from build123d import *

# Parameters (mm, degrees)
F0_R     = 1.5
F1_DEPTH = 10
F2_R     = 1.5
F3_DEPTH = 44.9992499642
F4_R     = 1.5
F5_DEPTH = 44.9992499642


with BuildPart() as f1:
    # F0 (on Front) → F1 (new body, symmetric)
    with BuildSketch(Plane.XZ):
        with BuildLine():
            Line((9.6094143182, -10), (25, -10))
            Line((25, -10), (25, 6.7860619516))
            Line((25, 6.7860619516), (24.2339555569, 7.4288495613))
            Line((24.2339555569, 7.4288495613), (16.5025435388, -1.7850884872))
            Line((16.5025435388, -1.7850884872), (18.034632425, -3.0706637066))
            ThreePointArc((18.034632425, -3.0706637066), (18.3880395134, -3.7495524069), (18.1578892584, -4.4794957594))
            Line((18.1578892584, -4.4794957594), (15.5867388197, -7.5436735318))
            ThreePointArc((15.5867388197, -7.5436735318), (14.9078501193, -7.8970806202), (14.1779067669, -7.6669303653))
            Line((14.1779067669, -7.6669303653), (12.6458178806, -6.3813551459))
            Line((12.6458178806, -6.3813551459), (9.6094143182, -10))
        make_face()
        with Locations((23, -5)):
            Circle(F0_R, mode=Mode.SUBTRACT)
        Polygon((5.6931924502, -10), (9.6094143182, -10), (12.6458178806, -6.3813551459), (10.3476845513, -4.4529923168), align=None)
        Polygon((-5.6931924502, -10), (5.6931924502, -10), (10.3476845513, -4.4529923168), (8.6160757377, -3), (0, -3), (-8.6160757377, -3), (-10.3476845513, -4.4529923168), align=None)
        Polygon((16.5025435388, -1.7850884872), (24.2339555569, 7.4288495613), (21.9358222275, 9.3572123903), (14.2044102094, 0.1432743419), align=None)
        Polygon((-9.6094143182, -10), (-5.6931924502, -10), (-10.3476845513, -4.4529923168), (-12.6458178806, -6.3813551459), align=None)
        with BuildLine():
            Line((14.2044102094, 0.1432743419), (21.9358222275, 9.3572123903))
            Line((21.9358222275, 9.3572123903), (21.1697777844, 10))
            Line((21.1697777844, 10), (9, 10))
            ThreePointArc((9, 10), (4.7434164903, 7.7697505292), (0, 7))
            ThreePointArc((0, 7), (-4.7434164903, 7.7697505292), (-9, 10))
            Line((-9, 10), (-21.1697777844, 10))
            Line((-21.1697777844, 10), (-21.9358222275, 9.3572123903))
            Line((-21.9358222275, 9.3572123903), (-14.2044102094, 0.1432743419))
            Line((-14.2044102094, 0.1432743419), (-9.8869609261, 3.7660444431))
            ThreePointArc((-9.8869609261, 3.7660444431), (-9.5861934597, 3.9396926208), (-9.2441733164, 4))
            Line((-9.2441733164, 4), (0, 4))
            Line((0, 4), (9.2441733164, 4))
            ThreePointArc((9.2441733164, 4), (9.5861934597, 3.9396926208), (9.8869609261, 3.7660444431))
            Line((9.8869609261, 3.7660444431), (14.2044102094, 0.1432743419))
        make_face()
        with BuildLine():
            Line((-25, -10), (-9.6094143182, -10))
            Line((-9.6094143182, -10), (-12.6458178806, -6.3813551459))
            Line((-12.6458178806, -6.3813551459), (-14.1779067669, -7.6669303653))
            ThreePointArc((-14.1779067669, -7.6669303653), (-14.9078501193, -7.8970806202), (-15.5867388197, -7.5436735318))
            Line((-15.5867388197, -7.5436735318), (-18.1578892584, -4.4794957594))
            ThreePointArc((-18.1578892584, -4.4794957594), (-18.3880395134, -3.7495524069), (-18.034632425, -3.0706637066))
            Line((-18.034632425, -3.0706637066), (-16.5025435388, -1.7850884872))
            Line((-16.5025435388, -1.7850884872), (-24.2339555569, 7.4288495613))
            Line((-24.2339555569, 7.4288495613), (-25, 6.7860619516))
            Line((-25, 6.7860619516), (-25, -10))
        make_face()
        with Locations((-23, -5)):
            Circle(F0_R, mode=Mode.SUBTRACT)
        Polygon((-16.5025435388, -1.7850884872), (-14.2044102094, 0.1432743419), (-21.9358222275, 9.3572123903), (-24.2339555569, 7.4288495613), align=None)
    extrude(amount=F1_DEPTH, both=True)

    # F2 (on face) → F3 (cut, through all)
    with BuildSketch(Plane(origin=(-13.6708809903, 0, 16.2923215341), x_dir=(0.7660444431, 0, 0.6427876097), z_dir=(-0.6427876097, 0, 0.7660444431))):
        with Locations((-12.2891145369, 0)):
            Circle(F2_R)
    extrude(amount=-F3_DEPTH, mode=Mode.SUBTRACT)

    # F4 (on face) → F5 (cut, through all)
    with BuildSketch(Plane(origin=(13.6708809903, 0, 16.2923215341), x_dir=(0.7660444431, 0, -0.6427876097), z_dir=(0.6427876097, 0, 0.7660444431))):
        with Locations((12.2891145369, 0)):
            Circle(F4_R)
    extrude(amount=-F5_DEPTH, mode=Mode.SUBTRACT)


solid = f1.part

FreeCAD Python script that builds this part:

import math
import FreeCAD as App
import Part
import Sketcher
from FreeCAD import Vector
Q = App.Units.Quantity

doc = App.newDocument("Part")
body = doc.addObject("PartDesign::Body", "Body")

# Sketch on XZ plane
sketch1 = body.newObject("Sketcher::SketchObject", "Sketch")
sketch1.AttachmentSupport = (doc.getObject("XZ_Plane"), [""])
sketch1.MapMode = "FlatFace"
sketch1.addGeometry(Part.LineSegment(Vector(25, -10, 0), Vector(25, 6.8, 0)), False)
sketch1.addGeometry(Part.LineSegment(Vector(25, 6.8, 0), Vector(24.2, 7.4, 0)), False)
sketch1.addGeometry(Part.LineSegment(Vector(24.2, 7.4, 0), Vector(21.9, 9.4, 0)), False)
sketch1.addGeometry(Part.LineSegment(Vector(21.9, 9.4, 0), Vector(21.2, 10, 0)), False)
sketch1.addGeometry(Part.LineSegment(Vector(21.2, 10, 0), Vector(9, 10, 0)), False)
sketch1.addGeometry(Part.ArcOfCircle(Part.Circle(Vector(0, 22, 0), Vector(0, 0, 1), 15), math.radians(-90), math.radians(-53)), False)
sketch1.addGeometry(Part.ArcOfCircle(Part.Circle(Vector(0, 22, 0), Vector(0, 0, 1), 15), math.radians(-127), math.radians(-90)), False)
sketch1.addGeometry(Part.LineSegment(Vector(-9, 10, 0), Vector(-21.2, 10, 0)), False)
sketch1.addGeometry(Part.LineSegment(Vector(-21.2, 10, 0), Vector(-21.9, 9.4, 0)), False)
sketch1.addGeometry(Part.LineSegment(Vector(-21.9, 9.4, 0), Vector(-24.2, 7.4, 0)), False)
sketch1.addGeometry(Part.LineSegment(Vector(-24.2, 7.4, 0), Vector(-25, 6.8, 0)), False)
sketch1.addGeometry(Part.LineSegment(Vector(-25, 6.8, 0), Vector(-25, -10, 0)), False)
sketch1.addGeometry(Part.LineSegment(Vector(-25, -10, 0), Vector(25, -10, 0)), False)
sketch1.addGeometry(Part.LineSegment(Vector(-18, -3.1, 0), Vector(-16.5, -1.8, 0)), False)
sketch1.addGeometry(Part.LineSegment(Vector(-16.5, -1.8, 0), Vector(-14.2, 0.1, 0)), False)
sketch1.addGeometry(Part.LineSegment(Vector(-14.2, 0.1, 0), Vector(-9.9, 3.8, 0)), False)
sketch1.addGeometry(Part.ArcOfCircle(Part.Circle(Vector(-9.2, 3, 0), Vector(0, 0, 1), 1), math.radians(90), math.radians(130)), False)
sketch1.addGeometry(Part.LineSegment(Vector(-9.2, 4, 0), Vector(9.2, 4, 0)), False)
sketch1.addGeometry(Part.ArcOfCircle(Part.Circle(Vector(9.2, 3, 0), Vector(0, 0, 1), 1), math.radians(50), math.radians(90)), False)
sketch1.addGeometry(Part.LineSegment(Vector(9.9, 3.8, 0), Vector(14.2, 0.1, 0)), False)
sketch1.addGeometry(Part.LineSegment(Vector(14.2, 0.1, 0), Vector(16.5, -1.8, 0)), False)
sketch1.addGeometry(Part.LineSegment(Vector(16.5, -1.8, 0), Vector(18, -3.1, 0)), False)
sketch1.addGeometry(Part.ArcOfCircle(Part.Circle(Vector(17.4, -3.8, 0), Vector(0, 0, 1), 1), math.radians(-40), math.radians(50)), False)
sketch1.addGeometry(Part.LineSegment(Vector(18.2, -4.5, 0), Vector(15.6, -7.5, 0)), False)
sketch1.addGeometry(Part.ArcOfCircle(Part.Circle(Vector(14.8, -6.9, 0), Vector(0, 0, 1), 1), math.radians(-130), math.radians(-40)), False)
sketch1.addGeometry(Part.LineSegment(Vector(14.2, -7.7, 0), Vector(12.6, -6.4, 0)), False)
sketch1.addGeometry(Part.LineSegment(Vector(12.6, -6.4, 0), Vector(10.3, -4.5, 0)), False)
sketch1.addGeometry(Part.LineSegment(Vector(10.3, -4.5, 0), Vector(8.6, -3, 0)), False)
sketch1.addGeometry(Part.LineSegment(Vector(8.6, -3, 0), Vector(-8.6, -3, 0)), False)
sketch1.addGeometry(Part.LineSegment(Vector(-8.6, -3, 0), Vector(-10.3, -4.5, 0)), False)
sketch1.addGeometry(Part.LineSegment(Vector(-10.3, -4.5, 0), Vector(-12.6, -6.4, 0)), False)
sketch1.addGeometry(Part.LineSegment(Vector(-12.6, -6.4, 0), Vector(-14.2, -7.7, 0)), False)
sketch1.addGeometry(Part.ArcOfCircle(Part.Circle(Vector(-14.8, -6.9, 0), Vector(0, 0, 1), 1), math.radians(-140), math.radians(-50)), False)
sketch1.addGeometry(Part.LineSegment(Vector(-15.6, -7.5, 0), Vector(-18.2, -4.5, 0)), False)
sketch1.addGeometry(Part.ArcOfCircle(Part.Circle(Vector(-17.4, -3.8, 0), Vector(0, 0, 1), 1), math.radians(130), math.radians(220)), False)
sketch1.addGeometry(Part.Circle(Vector(-23, -5, 0), Vector(0, 0, 1), 1.5), False)
sketch1.addGeometry(Part.Circle(Vector(23, -5, 0), Vector(0, 0, 1), 1.5), False)
sketch1.addConstraint(Sketcher.Constraint("Coincident", 0, 2, 1, 1))
sketch1.addConstraint(Sketcher.Constraint("Coincident", 1, 2, 2, 1))
sketch1.addConstraint(Sketcher.Constraint("Coincident", 2, 2, 3, 1))
sketch1.addConstraint(Sketcher.Constraint("Coincident", 3, 2, 4, 1))
sketch1.addConstraint(Sketcher.Constraint("Coincident", 4, 2, 5, 2))
sketch1.addConstraint(Sketcher.Constraint("Tangent", 5, 1, 6, 2))
sketch1.addConstraint(Sketcher.Constraint("Coincident", 6, 1, 7, 1))
sketch1.addConstraint(Sketcher.Constraint("Coincident", 7, 2, 8, 1))
sketch1.addConstraint(Sketcher.Constraint("Coincident", 8, 2, 9, 1))
sketch1.addConstraint(Sketcher.Constraint("Coincident", 9, 2, 10, 1))
sketch1.addConstraint(Sketcher.Constraint("Coincident", 10, 2, 11, 1))
sketch1.addConstraint(Sketcher.Constraint("Coincident", 11, 2, 12, 1))
sketch1.addConstraint(Sketcher.Constraint("Coincident", 12, 2, 0, 1))
sketch1.addConstraint(Sketcher.Constraint("Coincident", 13, 2, 14, 1))
sketch1.addConstraint(Sketcher.Constraint("Coincident", 14, 2, 15, 1))
sketch1.addConstraint(Sketcher.Constraint("Tangent", 15, 2, 16, 2))
sketch1.addConstraint(Sketcher.Constraint("Tangent", 16, 1, 17, 1))
sketch1.addConstraint(Sketcher.Constraint("Tangent", 17, 2, 18, 2))
sketch1.addConstraint(Sketcher.Constraint("Tangent", 18, 1, 19, 1))
sketch1.addConstraint(Sketcher.Constraint("Coincident", 19, 2, 20, 1))
sketch1.addConstraint(Sketcher.Constraint("Coincident", 20, 2, 21, 1))
sketch1.addConstraint(Sketcher.Constraint("Tangent", 21, 2, 22, 2))
sketch1.addConstraint(Sketcher.Constraint("Tangent", 22, 1, 23, 1))
sketch1.addConstraint(Sketcher.Constraint("Tangent", 23, 2, 24, 2))
sketch1.addConstraint(Sketcher.Constraint("Tangent", 24, 1, 25, 1))
sketch1.addConstraint(Sketcher.Constraint("Coincident", 25, 2, 26, 1))
sketch1.addConstraint(Sketcher.Constraint("Coincident", 26, 2, 27, 1))
sketch1.addConstraint(Sketcher.Constraint("Coincident", 27, 2, 28, 1))
sketch1.addConstraint(Sketcher.Constraint("Coincident", 28, 2, 29, 1))
sketch1.addConstraint(Sketcher.Constraint("Coincident", 29, 2, 30, 1))
sketch1.addConstraint(Sketcher.Constraint("Coincident", 30, 2, 31, 1))
sketch1.addConstraint(Sketcher.Constraint("Tangent", 31, 2, 32, 2))
sketch1.addConstraint(Sketcher.Constraint("Tangent", 32, 1, 33, 1))
sketch1.addConstraint(Sketcher.Constraint("Tangent", 33, 2, 34, 2))
sketch1.addConstraint(Sketcher.Constraint("Tangent", 34, 1, 13, 1))
sketch1.addConstraint(Sketcher.Constraint("Vertical", 0))
sketch1.addConstraint(Sketcher.Constraint("Horizontal", 4))
sketch1.addConstraint(Sketcher.Constraint("Horizontal", 7))
sketch1.addConstraint(Sketcher.Constraint("Vertical", 11))
sketch1.addConstraint(Sketcher.Constraint("Horizontal", 12))
sketch1.addConstraint(Sketcher.Constraint("Horizontal", 17))
sketch1.addConstraint(Sketcher.Constraint("Horizontal", 28))
sketch1.addConstraint(Sketcher.Constraint("Equal", 5, 6))
sketch1.addConstraint(Sketcher.Constraint("Equal", 16, 18))
sketch1.addConstraint(Sketcher.Constraint("Equal", 18, 22))
sketch1.addConstraint(Sketcher.Constraint("Equal", 22, 24))
sketch1.addConstraint(Sketcher.Constraint("Equal", 24, 32))
sketch1.addConstraint(Sketcher.Constraint("Equal", 32, 34))
sketch1.addConstraint(Sketcher.Constraint("Equal", 35, 36))
sketch1.addConstraint(Sketcher.Constraint("Symmetric", 24, 3, 32, 3, -2))
sketch1.addConstraint(Sketcher.Constraint("Symmetric", 22, 3, 34, 3, -2))
sketch1.addConstraint(Sketcher.Constraint("Symmetric", 35, 3, 36, 3, -2))
sketch1.addConstraint(Sketcher.Constraint("Symmetric", 4, 2, 6, 1, -2))
sketch1.addConstraint(Sketcher.Constraint("Symmetric", 2, 2, 8, 2, -2))
sketch1.addConstraint(Sketcher.Constraint("Symmetric", 1, 2, 9, 2, -2))
sketch1.addConstraint(Sketcher.Constraint("Symmetric", 0, 2, 10, 2, -2))
sketch1.addConstraint(Sketcher.Constraint("Symmetric", 15, 2, 18, 1, -2))
sketch1.addConstraint(Sketcher.Constraint("Symmetric", 13, 2, 20, 2, -2))
sketch1.addConstraint(Sketcher.Constraint("Symmetric", 26, 2, 29, 2, -2))
sketch1.addConstraint(Sketcher.Constraint("Symmetric", 25, 2, 30, 2, -2))
sketch1.addConstraint(Sketcher.Constraint("PointOnObject", 5, 1, -2))
sketch1.addConstraint(Sketcher.Constraint("Parallel", 1, 2))
sketch1.addConstraint(Sketcher.Constraint("Parallel", 2, 3))
sketch1.addConstraint(Sketcher.Constraint("Parallel", 8, 9))
sketch1.addConstraint(Sketcher.Constraint("Parallel", 10, 13))
sketch1.addConstraint(Sketcher.Constraint("Parallel", 13, 14))
sketch1.addConstraint(Sketcher.Constraint("Parallel", 14, 15))
sketch1.addConstraint(Sketcher.Constraint("Perpendicular", 21, 23))
sketch1.addConstraint(Sketcher.Constraint("Perpendicular", 23, 25))
sketch1.addConstraint(Sketcher.Constraint("Parallel", 25, 26))
sketch1.addConstraint(Sketcher.Constraint("Parallel", 26, 27))
sketch1.addConstraint(Sketcher.Constraint("Parallel", 15, 29))
sketch1.addConstraint(Sketcher.Constraint("Horizontal", 14, 2, 19, 2))
sketch1.addConstraint(Sketcher.Constraint("Equal", 1, 3))
sketch1.addConstraint(Sketcher.Constraint("Equal", 9, 14))
sketch1.addConstraint(Sketcher.Constraint("Equal", 21, 25))
sketch1.addConstraint(Sketcher.Constraint("Equal", 20, 26))
sketch1.addConstraint(Sketcher.Constraint("Diameter", 35, Q("3 mm")))
sketch1.addConstraint(Sketcher.Constraint("Radius", 5, Q("15 mm")))
sketch1.addConstraint(Sketcher.Constraint("Radius", 16, Q("1 mm")))
sketch1.addConstraint(Sketcher.Constraint("DistanceX", 12, 1, 12, 2, Q("50 mm")))
sketch1.addConstraint(Sketcher.Constraint("Angle", 1, Q("140 deg")))
sketch1.addConstraint(Sketcher.Constraint("Distance", 1, Q("1 mm")))
sketch1.addConstraint(Sketcher.Constraint("Distance", 2, Q("3 mm")))
sketch1.addConstraint(Sketcher.Constraint("Distance", 13, Q("2 mm")))
sketch1.addConstraint(Sketcher.Constraint("Distance", 23, Q("4 mm")))
sketch1.addConstraint(Sketcher.Constraint("DistanceY", -1, 1, 5, 3, Q("22 mm")))
sketch1.addConstraint(Sketcher.Constraint("DistanceY", -1, 1, 16, 3, Q("3 mm")))
sketch1.addConstraint(Sketcher.Constraint("DistanceX", 35, 3, -1, 1, Q("23 mm")))
sketch1.addConstraint(Sketcher.Constraint("DistanceY", 35, 3, -1, 1, Q("5 mm")))
sketch1.addConstraint(Sketcher.Constraint("DistanceY", -1, 1, 3, 2, Q("10 mm")))
sketch1.addConstraint(Sketcher.Constraint("DistanceY", 11, 2, -1, 1, Q("10 mm")))
sketch1.addConstraint(Sketcher.Constraint("DistanceY", 27, 2, -1, 1, Q("3 mm")))
sketch1.addConstraint(Sketcher.Constraint("DistanceX", 28, 2, 28, 1, Q("17.232151 mm")))
sketch1.addConstraint(Sketcher.Constraint("Distance", 15, Q("5.63603 mm")))
pad1 = body.newObject("PartDesign::Pad", "Pad")
pad1.Profile = sketch1
pad1.Length = 20
pad1.Midplane = True

# Sketch on an angled plane
sketch2 = body.newObject("Sketcher::SketchObject", "Sketch001")
sketch2.Placement = App.Placement(Vector(-13.670881, 0, 16.292322), App.Rotation(Vector(0.766044443, 0, 0.64278761), Vector(0, 1, 0), Vector(-0.64278761, 0, 0.766044443), "ZXY"))
sketch2.addGeometry(Part.Circle(Vector(-12.3, 0, 0), Vector(0, 0, 1), 1.5), False)
sketch2.addConstraint(Sketcher.Constraint("PointOnObject", 0, 3, -1))
sketch2.addConstraint(Sketcher.Constraint("Diameter", 0, Q("3 mm")))
sketch2.addConstraint(Sketcher.Constraint("DistanceX", 0, 3, -1, 1, Q("12.289115 mm")))
pocket1 = body.newObject("PartDesign::Pocket", "Pocket")
pocket1.Profile = sketch2
pocket1.Type = "ThroughAll"

# Sketch on an angled plane
sketch3 = body.newObject("Sketcher::SketchObject", "Sketch002")
sketch3.Placement = App.Placement(Vector(13.670881, 0, 16.292322), App.Rotation(Vector(0.766044443, 0, -0.64278761), Vector(0, 1, 0), Vector(0.64278761, 0, 0.766044443), "ZXY"))
sketch3.addGeometry(Part.Circle(Vector(12.3, 0, 0), Vector(0, 0, 1), 1.5), False)
sketch3.addConstraint(Sketcher.Constraint("PointOnObject", 0, 3, -1))
sketch3.addConstraint(Sketcher.Constraint("Diameter", 0, Q("3 mm")))
sketch3.addConstraint(Sketcher.Constraint("DistanceX", -1, 1, 0, 3, Q("12.289115 mm")))
pocket2 = body.newObject("PartDesign::Pocket", "Pocket001")
pocket2.Profile = sketch3
pocket2.Type = "ThroughAll"

doc.recompute()
